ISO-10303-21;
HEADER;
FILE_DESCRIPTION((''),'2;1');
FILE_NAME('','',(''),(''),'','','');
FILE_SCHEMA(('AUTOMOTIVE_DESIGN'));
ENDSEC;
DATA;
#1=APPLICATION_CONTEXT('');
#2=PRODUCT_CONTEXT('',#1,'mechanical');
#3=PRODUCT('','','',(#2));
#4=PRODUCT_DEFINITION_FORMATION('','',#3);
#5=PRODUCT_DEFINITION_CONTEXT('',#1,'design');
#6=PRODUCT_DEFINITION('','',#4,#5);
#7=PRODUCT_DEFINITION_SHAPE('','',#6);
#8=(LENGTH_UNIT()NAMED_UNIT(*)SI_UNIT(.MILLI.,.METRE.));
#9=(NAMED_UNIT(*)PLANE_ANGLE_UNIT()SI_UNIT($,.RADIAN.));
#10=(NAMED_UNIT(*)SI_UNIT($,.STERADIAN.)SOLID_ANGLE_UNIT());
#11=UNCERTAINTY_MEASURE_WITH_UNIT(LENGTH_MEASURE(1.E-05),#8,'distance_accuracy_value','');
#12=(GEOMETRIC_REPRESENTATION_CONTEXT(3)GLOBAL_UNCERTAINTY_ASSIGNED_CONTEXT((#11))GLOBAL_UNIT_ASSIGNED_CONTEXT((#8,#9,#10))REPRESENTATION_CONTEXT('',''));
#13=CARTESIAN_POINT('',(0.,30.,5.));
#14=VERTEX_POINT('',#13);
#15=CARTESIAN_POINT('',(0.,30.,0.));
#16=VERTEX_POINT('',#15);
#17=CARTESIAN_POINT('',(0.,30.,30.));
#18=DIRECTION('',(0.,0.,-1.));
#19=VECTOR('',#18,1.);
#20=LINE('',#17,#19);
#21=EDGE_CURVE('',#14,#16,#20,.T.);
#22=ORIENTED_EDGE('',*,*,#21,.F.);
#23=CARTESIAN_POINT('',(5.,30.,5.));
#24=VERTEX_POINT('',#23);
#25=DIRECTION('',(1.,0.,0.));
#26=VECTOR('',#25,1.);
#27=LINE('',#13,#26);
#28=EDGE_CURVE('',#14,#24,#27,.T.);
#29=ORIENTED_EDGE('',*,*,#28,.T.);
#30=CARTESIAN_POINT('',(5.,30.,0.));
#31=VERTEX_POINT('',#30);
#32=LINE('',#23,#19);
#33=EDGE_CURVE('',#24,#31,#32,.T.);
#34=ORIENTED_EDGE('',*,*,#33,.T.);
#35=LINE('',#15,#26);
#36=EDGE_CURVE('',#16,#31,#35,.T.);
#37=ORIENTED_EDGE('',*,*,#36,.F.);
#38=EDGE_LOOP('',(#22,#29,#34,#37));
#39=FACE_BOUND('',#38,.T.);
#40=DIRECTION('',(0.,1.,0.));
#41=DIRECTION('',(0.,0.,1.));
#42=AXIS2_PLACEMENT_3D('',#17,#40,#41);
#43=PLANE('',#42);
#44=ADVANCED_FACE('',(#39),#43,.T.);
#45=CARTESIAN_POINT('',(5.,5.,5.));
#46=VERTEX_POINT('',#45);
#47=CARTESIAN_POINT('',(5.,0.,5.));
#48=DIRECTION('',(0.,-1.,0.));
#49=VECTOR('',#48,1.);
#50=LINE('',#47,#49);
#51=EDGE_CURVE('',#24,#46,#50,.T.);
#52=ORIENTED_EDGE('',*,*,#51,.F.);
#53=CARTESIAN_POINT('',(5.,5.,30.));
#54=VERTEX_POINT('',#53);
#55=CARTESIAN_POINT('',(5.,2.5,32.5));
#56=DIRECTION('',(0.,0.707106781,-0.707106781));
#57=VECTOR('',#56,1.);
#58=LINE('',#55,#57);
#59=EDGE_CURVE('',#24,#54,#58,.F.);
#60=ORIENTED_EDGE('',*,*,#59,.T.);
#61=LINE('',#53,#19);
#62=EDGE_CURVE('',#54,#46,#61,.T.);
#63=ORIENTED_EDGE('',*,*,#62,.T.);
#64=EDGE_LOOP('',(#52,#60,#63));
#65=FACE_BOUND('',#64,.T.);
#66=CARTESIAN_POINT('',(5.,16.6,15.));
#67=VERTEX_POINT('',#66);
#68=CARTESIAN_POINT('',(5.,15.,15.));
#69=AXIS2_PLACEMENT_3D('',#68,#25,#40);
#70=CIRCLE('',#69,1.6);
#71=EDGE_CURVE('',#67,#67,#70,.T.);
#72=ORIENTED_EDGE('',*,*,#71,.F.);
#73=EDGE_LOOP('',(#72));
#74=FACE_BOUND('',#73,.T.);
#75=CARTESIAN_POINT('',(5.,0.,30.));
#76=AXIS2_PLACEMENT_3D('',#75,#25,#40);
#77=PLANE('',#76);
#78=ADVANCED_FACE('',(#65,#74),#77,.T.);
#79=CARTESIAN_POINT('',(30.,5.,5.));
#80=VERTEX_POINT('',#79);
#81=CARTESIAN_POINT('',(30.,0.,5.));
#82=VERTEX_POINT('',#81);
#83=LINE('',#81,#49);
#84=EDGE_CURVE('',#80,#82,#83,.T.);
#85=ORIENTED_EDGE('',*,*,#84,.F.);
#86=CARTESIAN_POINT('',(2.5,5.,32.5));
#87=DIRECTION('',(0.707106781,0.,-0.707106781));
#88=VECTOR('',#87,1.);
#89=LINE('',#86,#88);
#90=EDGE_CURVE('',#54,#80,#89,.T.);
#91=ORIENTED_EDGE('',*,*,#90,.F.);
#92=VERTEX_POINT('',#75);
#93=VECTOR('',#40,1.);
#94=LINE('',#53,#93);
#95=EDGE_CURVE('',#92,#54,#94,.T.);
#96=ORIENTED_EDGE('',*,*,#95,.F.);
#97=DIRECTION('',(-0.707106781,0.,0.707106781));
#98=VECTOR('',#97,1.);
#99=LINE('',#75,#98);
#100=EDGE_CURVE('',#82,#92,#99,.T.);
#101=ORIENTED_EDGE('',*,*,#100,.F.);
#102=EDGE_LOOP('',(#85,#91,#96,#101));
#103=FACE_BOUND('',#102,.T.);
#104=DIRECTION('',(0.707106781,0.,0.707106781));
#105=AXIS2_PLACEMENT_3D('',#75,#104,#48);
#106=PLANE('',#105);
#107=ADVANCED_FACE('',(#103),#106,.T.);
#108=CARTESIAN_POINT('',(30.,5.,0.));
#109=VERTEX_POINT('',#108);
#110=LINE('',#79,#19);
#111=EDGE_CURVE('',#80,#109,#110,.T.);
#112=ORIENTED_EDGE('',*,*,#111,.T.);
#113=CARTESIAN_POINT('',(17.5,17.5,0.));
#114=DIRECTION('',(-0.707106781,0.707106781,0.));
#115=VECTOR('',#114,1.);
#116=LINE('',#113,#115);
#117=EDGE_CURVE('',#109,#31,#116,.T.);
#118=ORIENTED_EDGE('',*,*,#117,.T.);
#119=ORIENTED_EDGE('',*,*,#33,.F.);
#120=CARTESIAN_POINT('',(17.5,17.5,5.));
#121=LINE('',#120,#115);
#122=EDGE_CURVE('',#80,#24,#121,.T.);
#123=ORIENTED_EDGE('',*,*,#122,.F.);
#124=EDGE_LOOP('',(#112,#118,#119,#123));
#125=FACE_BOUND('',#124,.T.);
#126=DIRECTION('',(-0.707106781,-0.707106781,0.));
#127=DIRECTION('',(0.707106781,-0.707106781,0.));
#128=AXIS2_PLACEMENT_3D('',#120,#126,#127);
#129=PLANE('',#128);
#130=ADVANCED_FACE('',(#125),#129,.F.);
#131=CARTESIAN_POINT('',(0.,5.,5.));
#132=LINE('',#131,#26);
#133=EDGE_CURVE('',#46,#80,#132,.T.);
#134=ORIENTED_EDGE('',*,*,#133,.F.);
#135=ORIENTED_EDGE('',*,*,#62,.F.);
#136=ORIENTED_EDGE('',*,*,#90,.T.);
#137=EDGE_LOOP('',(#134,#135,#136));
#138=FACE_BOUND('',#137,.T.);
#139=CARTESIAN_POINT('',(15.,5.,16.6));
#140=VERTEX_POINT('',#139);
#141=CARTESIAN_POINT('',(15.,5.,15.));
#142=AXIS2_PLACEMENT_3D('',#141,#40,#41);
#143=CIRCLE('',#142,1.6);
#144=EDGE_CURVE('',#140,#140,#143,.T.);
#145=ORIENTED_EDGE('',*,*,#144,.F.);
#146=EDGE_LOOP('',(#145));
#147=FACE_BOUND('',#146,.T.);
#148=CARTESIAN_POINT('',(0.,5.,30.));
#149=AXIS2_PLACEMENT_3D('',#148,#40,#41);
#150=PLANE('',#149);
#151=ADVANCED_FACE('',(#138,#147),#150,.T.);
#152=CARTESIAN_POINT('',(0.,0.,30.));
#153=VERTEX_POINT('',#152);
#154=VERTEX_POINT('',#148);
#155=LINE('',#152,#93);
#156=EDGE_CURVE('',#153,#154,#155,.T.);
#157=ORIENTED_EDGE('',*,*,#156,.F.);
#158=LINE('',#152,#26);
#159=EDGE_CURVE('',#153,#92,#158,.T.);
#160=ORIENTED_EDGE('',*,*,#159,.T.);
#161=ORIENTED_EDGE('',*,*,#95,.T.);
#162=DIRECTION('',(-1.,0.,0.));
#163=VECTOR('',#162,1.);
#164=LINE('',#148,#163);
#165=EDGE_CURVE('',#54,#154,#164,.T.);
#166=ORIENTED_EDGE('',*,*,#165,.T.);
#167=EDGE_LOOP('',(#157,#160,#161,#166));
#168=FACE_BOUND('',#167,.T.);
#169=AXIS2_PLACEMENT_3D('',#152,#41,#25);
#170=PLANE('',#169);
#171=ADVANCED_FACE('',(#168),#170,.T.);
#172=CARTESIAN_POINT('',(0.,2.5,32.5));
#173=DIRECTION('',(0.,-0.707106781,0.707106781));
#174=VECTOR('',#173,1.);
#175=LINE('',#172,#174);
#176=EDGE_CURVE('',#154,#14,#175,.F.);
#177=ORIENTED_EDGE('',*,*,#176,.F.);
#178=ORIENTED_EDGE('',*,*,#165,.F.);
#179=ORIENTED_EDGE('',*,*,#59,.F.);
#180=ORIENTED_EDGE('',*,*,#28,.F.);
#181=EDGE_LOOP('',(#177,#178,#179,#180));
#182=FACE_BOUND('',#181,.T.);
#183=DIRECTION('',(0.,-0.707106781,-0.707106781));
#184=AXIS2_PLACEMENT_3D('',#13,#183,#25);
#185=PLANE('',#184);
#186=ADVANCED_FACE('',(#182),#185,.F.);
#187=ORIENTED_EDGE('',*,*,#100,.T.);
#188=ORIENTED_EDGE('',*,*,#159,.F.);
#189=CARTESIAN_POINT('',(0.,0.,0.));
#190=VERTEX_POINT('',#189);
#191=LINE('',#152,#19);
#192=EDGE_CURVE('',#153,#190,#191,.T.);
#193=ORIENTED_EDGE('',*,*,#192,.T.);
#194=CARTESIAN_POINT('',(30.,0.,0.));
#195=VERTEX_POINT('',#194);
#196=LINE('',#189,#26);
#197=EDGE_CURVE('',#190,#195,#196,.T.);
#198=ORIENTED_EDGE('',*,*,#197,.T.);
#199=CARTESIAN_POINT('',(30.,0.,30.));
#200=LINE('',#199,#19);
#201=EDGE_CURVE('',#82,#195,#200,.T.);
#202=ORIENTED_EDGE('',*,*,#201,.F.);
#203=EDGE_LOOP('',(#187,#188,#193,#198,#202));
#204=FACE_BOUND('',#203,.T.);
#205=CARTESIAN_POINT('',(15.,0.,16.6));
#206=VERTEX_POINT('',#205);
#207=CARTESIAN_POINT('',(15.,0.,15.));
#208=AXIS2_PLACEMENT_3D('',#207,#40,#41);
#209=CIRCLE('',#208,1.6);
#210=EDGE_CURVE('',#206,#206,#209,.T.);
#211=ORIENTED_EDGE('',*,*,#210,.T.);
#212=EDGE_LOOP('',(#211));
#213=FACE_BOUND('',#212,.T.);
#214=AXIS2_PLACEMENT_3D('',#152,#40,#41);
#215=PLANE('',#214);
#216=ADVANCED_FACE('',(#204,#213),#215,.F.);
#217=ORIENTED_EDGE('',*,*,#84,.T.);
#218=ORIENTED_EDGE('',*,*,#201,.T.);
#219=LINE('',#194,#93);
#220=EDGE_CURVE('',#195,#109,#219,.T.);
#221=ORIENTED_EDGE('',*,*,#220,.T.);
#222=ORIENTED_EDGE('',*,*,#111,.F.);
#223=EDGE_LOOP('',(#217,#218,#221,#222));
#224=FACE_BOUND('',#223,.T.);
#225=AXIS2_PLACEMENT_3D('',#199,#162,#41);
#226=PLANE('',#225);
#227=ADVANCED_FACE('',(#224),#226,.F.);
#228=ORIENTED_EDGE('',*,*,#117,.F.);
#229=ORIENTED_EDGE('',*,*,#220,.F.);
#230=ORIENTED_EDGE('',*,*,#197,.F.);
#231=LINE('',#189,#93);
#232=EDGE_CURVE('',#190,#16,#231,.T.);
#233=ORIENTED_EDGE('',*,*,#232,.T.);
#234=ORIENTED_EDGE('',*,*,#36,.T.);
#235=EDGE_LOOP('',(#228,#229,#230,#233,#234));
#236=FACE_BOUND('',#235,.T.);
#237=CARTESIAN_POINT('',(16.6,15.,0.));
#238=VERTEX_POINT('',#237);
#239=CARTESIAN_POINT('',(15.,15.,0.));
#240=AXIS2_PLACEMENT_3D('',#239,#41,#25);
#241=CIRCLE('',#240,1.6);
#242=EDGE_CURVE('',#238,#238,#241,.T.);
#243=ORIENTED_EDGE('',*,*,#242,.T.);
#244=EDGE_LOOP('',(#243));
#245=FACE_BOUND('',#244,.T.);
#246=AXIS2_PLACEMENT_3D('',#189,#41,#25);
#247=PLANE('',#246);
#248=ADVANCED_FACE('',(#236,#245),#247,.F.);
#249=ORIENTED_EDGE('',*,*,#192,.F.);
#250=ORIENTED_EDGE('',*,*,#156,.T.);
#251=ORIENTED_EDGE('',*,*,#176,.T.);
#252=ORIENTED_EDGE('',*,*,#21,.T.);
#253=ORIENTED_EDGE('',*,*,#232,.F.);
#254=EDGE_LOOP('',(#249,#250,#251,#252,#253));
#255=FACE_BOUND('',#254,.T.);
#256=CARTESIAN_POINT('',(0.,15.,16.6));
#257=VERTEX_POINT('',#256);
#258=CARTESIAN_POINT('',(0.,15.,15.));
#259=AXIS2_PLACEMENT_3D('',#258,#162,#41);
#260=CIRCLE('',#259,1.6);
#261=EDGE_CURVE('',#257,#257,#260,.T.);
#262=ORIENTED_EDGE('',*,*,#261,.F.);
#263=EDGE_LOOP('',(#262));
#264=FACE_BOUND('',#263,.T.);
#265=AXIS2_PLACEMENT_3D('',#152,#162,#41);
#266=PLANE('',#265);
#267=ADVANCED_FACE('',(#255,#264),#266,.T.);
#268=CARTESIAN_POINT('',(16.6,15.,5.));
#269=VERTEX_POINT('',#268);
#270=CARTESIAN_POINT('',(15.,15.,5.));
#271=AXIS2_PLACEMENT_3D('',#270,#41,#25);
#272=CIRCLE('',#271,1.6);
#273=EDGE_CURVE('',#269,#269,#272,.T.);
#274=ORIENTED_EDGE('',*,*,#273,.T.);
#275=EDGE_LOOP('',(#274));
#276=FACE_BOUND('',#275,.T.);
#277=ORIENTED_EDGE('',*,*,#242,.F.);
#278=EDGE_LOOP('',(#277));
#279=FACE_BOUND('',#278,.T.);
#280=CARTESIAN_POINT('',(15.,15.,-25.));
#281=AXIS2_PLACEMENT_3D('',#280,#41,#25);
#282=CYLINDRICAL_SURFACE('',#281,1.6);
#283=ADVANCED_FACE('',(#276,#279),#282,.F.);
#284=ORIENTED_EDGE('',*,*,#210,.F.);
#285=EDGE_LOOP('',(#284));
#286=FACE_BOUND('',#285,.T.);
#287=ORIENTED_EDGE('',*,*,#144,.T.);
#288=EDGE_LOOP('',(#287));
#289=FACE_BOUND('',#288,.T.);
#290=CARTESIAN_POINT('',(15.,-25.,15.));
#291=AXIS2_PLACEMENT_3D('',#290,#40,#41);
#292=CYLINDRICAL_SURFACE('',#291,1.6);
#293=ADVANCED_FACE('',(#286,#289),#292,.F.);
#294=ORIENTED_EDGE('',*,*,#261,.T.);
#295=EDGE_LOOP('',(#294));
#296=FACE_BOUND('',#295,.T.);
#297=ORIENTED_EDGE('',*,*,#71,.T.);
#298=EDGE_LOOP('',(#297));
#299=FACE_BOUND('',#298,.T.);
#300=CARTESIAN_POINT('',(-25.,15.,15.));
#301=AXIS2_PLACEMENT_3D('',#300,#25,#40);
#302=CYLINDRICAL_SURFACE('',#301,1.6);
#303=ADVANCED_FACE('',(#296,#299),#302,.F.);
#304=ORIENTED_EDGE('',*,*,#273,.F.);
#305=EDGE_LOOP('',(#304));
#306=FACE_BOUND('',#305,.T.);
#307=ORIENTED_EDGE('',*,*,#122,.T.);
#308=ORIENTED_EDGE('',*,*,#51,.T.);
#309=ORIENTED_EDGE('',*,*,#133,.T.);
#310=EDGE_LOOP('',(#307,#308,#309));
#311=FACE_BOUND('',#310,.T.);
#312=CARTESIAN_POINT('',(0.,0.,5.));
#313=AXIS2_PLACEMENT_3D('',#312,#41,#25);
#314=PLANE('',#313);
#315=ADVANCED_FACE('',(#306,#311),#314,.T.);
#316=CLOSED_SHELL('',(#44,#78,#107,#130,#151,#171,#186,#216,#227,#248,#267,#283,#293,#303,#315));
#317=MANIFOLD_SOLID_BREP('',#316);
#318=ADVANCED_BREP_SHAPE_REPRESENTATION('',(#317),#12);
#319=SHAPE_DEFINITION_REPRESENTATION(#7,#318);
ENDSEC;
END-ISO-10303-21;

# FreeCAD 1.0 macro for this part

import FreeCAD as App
import Part
import Sketcher
Q = App.Units.Quantity


def edges_at(feature, points):
    """Names of the edges that pass closest to the given points."""
    edges = feature.Shape.Edges
    near = lambda p: min(range(len(edges)), key=lambda i: edges[i].distToShape(Part.Vertex(*p))[0])
    return sorted({f"Edge{near(p) + 1}" for p in points})


def add_polygon(sketch, points):
    """Adds a closed chain of lines whose ends are joined by coincident constraints."""
    first, n = sketch.GeometryCount, len(points)
    for a, b in zip(points, points[1:] + points[:1]):
        sketch.addGeometry(Part.LineSegment(App.Vector(*a, 0), App.Vector(*b, 0)), False)
    for i in range(n):
        sketch.addConstraint(Sketcher.Constraint("Coincident", first + i, 2, first + (i + 1) % n, 1))

doc = App.newDocument("Part")
body = doc.addObject("PartDesign::Body", "Body")

# Sketch on XY plane
sketch1 = doc.addObject("Sketcher::SketchObject", "Sketch")
body.addObject(sketch1)
sketch1.AttachmentSupport = (doc.XY_Plane, [""])
sketch1.MapMode = "FlatFace"
add_polygon(sketch1, [(5, 30), (5, 5), (30, 5)])  # lines 0-2
sketch1.addConstraint([
    Sketcher.Constraint("Vertical", 0),
    Sketcher.Constraint("Horizontal", 1),
    Sketcher.Constraint("Equal", 1, 0),
    Sketcher.Constraint("DistanceX", 1, 1, 1, 2, Q("25 mm")),
    Sketcher.Constraint("DistanceX", -1, 1, 0, 2, Q("5 mm")),
    Sketcher.Constraint("DistanceY", -1, 1, 0, 2, Q("5 mm")),
])
pad1 = doc.addObject("PartDesign::Pad", "Pad")
body.addObject(pad1)
pad1.Profile = sketch1
pad1.Length = 5

# Sketch on XY plane
sketch2 = doc.addObject("Sketcher::SketchObject", "Sketch001")
body.addObject(sketch2)
sketch2.AttachmentSupport = (doc.XY_Plane, [""])
sketch2.MapMode = "FlatFace"
add_polygon(sketch2, [(30, 5), (5, 5), (5, 30), (0, 30), (0, 0), (30, 0)])  # lines 0-5
sketch2.addConstraint([
    Sketcher.Constraint("Horizontal", 0),
    Sketcher.Constraint("Vertical", 1),
    Sketcher.Constraint("Horizontal", 2),
    Sketcher.Constraint("Vertical", 3),
    Sketcher.Constraint("Horizontal", 4),
    Sketcher.Constraint("Vertical", 5),
    Sketcher.Constraint("Coincident", 3, 2, -1, 1),
    Sketcher.Constraint("Equal", 0, 1),
    Sketcher.Constraint("Equal", 4, 3),
    Sketcher.Constraint("DistanceX", 0, 2, 0, 1, Q("25 mm")),
    Sketcher.Constraint("DistanceX", 2, 2, 2, 1, Q("5 mm")),
])
pad2 = doc.addObject("PartDesign::Pad", "Pad001")
body.addObject(pad2)
pad2.Profile = sketch2
pad2.Length = 30
doc.recompute()

chamfer = doc.addObject("PartDesign::Chamfer", "Chamfer")
body.addObject(chamfer)
chamfer.Base = (pad2, edges_at(pad2, [(2.5, 30, 30), (30, 2.5, 30)]))
chamfer.Size = 25

# Sketch on XZ plane
sketch3 = doc.addObject("Sketcher::SketchObject", "Sketch002")
body.addObject(sketch3)
sketch3.AttachmentSupport = (doc.XZ_Plane, [""])
sketch3.MapMode = "FlatFace"
sketch3.AttachmentOffset = App.Placement(App.Vector(0, 0, -5), App.Rotation())
sketch3.addGeometry(Part.Circle(App.Vector(15, 15, 0), App.Vector(0, 0, 1), 1.6), False)
sketch3.addConstraint([
    Sketcher.Constraint("Diameter", 0, Q("3.2 mm")),
    Sketcher.Constraint("DistanceX", -1, 1, 0, 3, Q("15 mm")),
    Sketcher.Constraint("DistanceY", -1, 1, 0, 3, Q("15 mm")),
])
pocket1 = doc.addObject("PartDesign::Pocket", "Pocket")
body.addObject(pocket1)
pocket1.Profile = sketch3
pocket1.Length = 30
pocket1.Reversed = True

# Sketch on YZ plane
sketch4 = doc.addObject("Sketcher::SketchObject", "Sketch003")
body.addObject(sketch4)
sketch4.AttachmentSupport = (doc.YZ_Plane, [""])
sketch4.MapMode = "FlatFace"
sketch4.AttachmentOffset = App.Placement(App.Vector(0, 0, 5), App.Rotation())
sketch4.addGeometry(Part.Circle(App.Vector(15, 15, 0), App.Vector(0, 0, 1), 1.6), False)
sketch4.addConstraint([
    Sketcher.Constraint("Diameter", 0, Q("3.2 mm")),
    Sketcher.Constraint("DistanceX", -1, 1, 0, 3, Q("15 mm")),
    Sketcher.Constraint("DistanceY", -1, 1, 0, 3, Q("15 mm")),
])
pocket2 = doc.addObject("PartDesign::Pocket", "Pocket001")
body.addObject(pocket2)
pocket2.Profile = sketch4
pocket2.Length = 30

# Sketch on XY plane
sketch5 = doc.addObject("Sketcher::SketchObject", "Sketch004")
body.addObject(sketch5)
sketch5.AttachmentSupport = (doc.XY_Plane, [""])
sketch5.MapMode = "FlatFace"
sketch5.AttachmentOffset = App.Placement(App.Vector(0, 0, 5), App.Rotation())
sketch5.addGeometry(Part.Circle(App.Vector(15, 15, 0), App.Vector(0, 0, 1), 1.6), False)
sketch5.addConstraint([
    Sketcher.Constraint("Diameter", 0, Q("3.2 mm")),
    Sketcher.Constraint("DistanceX", -1, 1, 0, 3, Q("15 mm")),
    Sketcher.Constraint("DistanceY", -1, 1, 0, 3, Q("15 mm")),
])
pocket3 = doc.addObject("PartDesign::Pocket", "Pocket002")
body.addObject(pocket3)
pocket3.Profile = sketch5
pocket3.Length = 30

doc.recompute()
